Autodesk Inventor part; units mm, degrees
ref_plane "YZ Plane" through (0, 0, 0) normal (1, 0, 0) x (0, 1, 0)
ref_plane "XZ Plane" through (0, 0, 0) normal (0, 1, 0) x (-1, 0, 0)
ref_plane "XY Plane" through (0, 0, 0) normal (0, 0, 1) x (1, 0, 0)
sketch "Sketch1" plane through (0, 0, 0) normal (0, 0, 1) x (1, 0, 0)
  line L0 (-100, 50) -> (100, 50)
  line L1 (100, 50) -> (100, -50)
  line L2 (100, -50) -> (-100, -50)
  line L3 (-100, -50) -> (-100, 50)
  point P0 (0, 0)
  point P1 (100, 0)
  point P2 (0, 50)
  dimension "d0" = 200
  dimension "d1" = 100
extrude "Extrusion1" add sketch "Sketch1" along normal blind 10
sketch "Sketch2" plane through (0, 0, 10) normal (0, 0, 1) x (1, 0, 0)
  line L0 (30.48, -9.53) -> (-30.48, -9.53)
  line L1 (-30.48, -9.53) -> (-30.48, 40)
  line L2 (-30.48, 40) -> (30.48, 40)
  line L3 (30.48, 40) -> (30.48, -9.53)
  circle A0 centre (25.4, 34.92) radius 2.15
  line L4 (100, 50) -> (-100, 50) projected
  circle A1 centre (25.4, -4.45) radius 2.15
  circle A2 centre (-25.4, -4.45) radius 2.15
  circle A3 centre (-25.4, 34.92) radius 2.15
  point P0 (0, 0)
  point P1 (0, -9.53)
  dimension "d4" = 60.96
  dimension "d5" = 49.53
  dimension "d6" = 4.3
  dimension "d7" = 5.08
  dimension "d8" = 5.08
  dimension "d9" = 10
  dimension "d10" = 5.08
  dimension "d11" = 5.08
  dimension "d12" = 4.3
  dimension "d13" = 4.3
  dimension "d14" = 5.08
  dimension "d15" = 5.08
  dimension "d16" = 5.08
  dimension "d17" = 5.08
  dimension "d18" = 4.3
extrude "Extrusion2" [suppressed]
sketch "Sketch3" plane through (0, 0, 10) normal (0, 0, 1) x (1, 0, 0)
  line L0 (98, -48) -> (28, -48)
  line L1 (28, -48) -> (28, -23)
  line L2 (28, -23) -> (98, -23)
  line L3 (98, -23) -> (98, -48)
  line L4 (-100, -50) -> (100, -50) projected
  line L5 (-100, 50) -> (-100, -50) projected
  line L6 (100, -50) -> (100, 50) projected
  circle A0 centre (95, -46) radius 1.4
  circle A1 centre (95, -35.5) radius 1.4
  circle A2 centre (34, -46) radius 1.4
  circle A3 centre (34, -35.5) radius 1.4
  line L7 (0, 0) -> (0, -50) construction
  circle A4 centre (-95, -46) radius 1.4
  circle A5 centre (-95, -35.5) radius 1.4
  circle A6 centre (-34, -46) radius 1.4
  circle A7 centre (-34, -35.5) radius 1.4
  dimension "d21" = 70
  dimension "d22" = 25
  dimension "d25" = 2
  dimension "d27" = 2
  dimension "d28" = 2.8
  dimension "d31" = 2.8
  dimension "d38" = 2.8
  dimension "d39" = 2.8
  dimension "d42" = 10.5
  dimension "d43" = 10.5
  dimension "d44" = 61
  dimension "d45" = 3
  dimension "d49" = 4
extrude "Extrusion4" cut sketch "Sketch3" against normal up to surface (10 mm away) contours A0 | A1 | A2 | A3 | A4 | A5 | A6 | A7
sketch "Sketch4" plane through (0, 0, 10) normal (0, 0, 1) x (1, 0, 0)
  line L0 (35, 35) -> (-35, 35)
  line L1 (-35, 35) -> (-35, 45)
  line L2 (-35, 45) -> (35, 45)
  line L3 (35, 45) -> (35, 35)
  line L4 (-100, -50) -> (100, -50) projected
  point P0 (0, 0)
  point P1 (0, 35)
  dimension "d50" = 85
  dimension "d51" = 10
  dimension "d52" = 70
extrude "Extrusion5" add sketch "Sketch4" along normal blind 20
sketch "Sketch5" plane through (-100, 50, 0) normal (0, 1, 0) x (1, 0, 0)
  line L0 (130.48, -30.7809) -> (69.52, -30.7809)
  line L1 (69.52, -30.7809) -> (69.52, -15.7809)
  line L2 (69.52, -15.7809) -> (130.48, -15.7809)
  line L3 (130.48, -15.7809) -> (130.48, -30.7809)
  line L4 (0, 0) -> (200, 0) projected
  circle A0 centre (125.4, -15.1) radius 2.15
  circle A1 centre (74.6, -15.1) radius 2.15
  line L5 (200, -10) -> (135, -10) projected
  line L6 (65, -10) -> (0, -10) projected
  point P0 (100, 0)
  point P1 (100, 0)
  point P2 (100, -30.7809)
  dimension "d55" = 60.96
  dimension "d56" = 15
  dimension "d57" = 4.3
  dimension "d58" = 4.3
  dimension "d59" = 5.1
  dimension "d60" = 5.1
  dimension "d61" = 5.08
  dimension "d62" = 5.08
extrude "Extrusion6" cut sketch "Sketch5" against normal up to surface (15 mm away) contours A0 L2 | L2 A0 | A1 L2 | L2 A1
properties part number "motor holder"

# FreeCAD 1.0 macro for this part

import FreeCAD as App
import Part
import Sketcher
from FreeCAD import Vector

doc = App.newDocument("Part")
body = doc.addObject("PartDesign::Body", "Body")

# Sketch on XY plane
sketch1 = doc.addObject("Sketcher::SketchObject", "Sketch")
body.addObject(sketch1)
sketch1.AttachmentSupport = (doc.XY_Plane, [""])
sketch1.MapMode = "FlatFace"
sketch1.addGeometry([
    Part.LineSegment(Vector(100, 50, 0), Vector(-100, 50, 0)),
    Part.LineSegment(Vector(-100, 50, 0), Vector(-100, -50, 0)),
    Part.LineSegment(Vector(-100, -50, 0), Vector(100, -50, 0)),
    Part.LineSegment(Vector(100, -50, 0), Vector(100, 50, 0)),
], False)
sketch1.addConstraint([
    Sketcher.Constraint("Coincident", 0, 2, 1, 1),
    Sketcher.Constraint("Coincident", 1, 2, 2, 1),
    Sketcher.Constraint("Coincident", 2, 2, 3, 1),
    Sketcher.Constraint("Coincident", 3, 2, 0, 1),
    Sketcher.Constraint("Horizontal", 0),
    Sketcher.Constraint("Vertical", 1),
    Sketcher.Constraint("Horizontal", 2),
    Sketcher.Constraint("Vertical", 3),
    Sketcher.Constraint("Symmetric", 0, 2, 2, 2, -1, 1),
    Sketcher.Constraint("DistanceX", 0, 2, 0, 1, 200.0),
    Sketcher.Constraint("DistanceY", 1, 2, 1, 1, 100.0),
])
pad1 = doc.addObject("PartDesign::Pad", "Pad")
body.addObject(pad1)
pad1.Profile = sketch1
pad1.Length = 10

# Sketch on XY plane
sketch2 = doc.addObject("Sketcher::SketchObject", "Sketch001")
body.addObject(sketch2)
sketch2.AttachmentSupport = (doc.XY_Plane, [""])
sketch2.MapMode = "FlatFace"
sketch2.AttachmentOffset = App.Placement(Vector(0, 0, 10), App.Rotation())
sketch2.addGeometry([
    Part.Circle(Vector(95, -46, 0), Vector(0, 0, 1), 1.4),  # 0
    Part.Circle(Vector(95, -35.5, 0), Vector(0, 0, 1), 1.4),  # 1
    Part.Circle(Vector(34, -46, 0), Vector(0, 0, 1), 1.4),  # 2
    Part.Circle(Vector(34, -35.5, 0), Vector(0, 0, 1), 1.4),  # 3
    Part.Circle(Vector(-95, -46, 0), Vector(0, 0, 1), 1.4),  # 4
    Part.Circle(Vector(-95, -35.5, 0), Vector(0, 0, 1), 1.4),  # 5
    Part.Circle(Vector(-34, -46, 0), Vector(0, 0, 1), 1.4),  # 6
    Part.Circle(Vector(-34, -35.5, 0), Vector(0, 0, 1), 1.4),  # 7
], False)
sketch2.addConstraint([
    Sketcher.Constraint("Equal", 0, 1),
    Sketcher.Constraint("Equal", 1, 2),
    Sketcher.Constraint("Equal", 2, 3),
    Sketcher.Constraint("Equal", 3, 4),
    Sketcher.Constraint("Equal", 4, 5),
    Sketcher.Constraint("Equal", 5, 6),
    Sketcher.Constraint("Equal", 6, 7),
    Sketcher.Constraint("Symmetric", 0, 3, 4, 3, -2),
    Sketcher.Constraint("Symmetric", 1, 3, 5, 3, -2),
    Sketcher.Constraint("Symmetric", 2, 3, 6, 3, -2),
    Sketcher.Constraint("Symmetric", 3, 3, 7, 3, -2),
    Sketcher.Constraint("Horizontal", 0, 3, 2, 3),
    Sketcher.Constraint("Horizontal", 1, 3, 3, 3),
    Sketcher.Constraint("Vertical", 0, 3, 1, 3),
    Sketcher.Constraint("Vertical", 2, 3, 3, 3),
    Sketcher.Constraint("Diameter", 0, 2.8),
    Sketcher.Constraint("DistanceX", 2, 3, 0, 3, 61.0),
    Sketcher.Constraint("DistanceY", 0, 3, 1, 3, 10.5),
    Sketcher.Constraint("DistanceX", -1, 1, 0, 3, 95.0),
    Sketcher.Constraint("DistanceY", 0, 3, -1, 1, 46.0),
])
pocket1 = doc.addObject("PartDesign::Pocket", "Pocket")
body.addObject(pocket1)
pocket1.Profile = sketch2
pocket1.Length = 10

# Sketch on XY plane
sketch3 = doc.addObject("Sketcher::SketchObject", "Sketch002")
body.addObject(sketch3)
sketch3.AttachmentSupport = (doc.XY_Plane, [""])
sketch3.MapMode = "FlatFace"
sketch3.AttachmentOffset = App.Placement(Vector(0, 0, 10), App.Rotation())
sketch3.addGeometry([
    Part.LineSegment(Vector(-35, 35, 0), Vector(35, 35, 0)),
    Part.LineSegment(Vector(35, 35, 0), Vector(35, 45, 0)),
    Part.LineSegment(Vector(35, 45, 0), Vector(-35, 45, 0)),
    Part.LineSegment(Vector(-35, 45, 0), Vector(-35, 35, 0)),
], False)
sketch3.addConstraint([
    Sketcher.Constraint("Coincident", 0, 2, 1, 1),
    Sketcher.Constraint("Coincident", 1, 2, 2, 1),
    Sketcher.Constraint("Coincident", 2, 2, 3, 1),
    Sketcher.Constraint("Coincident", 3, 2, 0, 1),
    Sketcher.Constraint("Horizontal", 0),
    Sketcher.Constraint("Vertical", 1),
    Sketcher.Constraint("Horizontal", 2),
    Sketcher.Constraint("Vertical", 3),
    Sketcher.Constraint("DistanceX", 0, 1, 0, 2, 70.0),
    Sketcher.Constraint("DistanceY", 1, 1, 1, 2, 10.0),
    Sketcher.Constraint("DistanceX", -1, 1, 0, 2, 35.0),
    Sketcher.Constraint("DistanceY", -1, 1, 0, 2, 35.0),
])
pad2 = doc.addObject("PartDesign::Pad", "Pad001")
body.addObject(pad2)
pad2.Profile = sketch3
pad2.Length = 20

# Sketch on XZ plane
sketch4 = doc.addObject("Sketcher::SketchObject", "Sketch003")
body.addObject(sketch4)
sketch4.AttachmentSupport = (doc.XZ_Plane, [""])
sketch4.MapMode = "FlatFace"
sketch4.AttachmentOffset = App.Placement(Vector(0, 0, -50), App.Rotation())
sketch4.addGeometry([
    Part.Circle(Vector(25.4, 15.1, 0), Vector(0, 0, 1), 2.15),
    Part.Circle(Vector(-25.4, 15.1, 0), Vector(0, 0, 1), 2.15),
], False)
sketch4.addConstraint([
    Sketcher.Constraint("Equal", 0, 1),
    Sketcher.Constraint("Symmetric", 0, 3, 1, 3, -2),
    Sketcher.Constraint("Diameter", 0, 4.3),
    Sketcher.Constraint("DistanceX", -1, 1, 0, 3, 25.4),
    Sketcher.Constraint("DistanceY", -1, 1, 0, 3, 15.1),
])
pocket2 = doc.addObject("PartDesign::Pocket", "Pocket001")
body.addObject(pocket2)
pocket2.Profile = sketch4
pocket2.Length = 15
pocket2.Reversed = True

doc.recompute()
